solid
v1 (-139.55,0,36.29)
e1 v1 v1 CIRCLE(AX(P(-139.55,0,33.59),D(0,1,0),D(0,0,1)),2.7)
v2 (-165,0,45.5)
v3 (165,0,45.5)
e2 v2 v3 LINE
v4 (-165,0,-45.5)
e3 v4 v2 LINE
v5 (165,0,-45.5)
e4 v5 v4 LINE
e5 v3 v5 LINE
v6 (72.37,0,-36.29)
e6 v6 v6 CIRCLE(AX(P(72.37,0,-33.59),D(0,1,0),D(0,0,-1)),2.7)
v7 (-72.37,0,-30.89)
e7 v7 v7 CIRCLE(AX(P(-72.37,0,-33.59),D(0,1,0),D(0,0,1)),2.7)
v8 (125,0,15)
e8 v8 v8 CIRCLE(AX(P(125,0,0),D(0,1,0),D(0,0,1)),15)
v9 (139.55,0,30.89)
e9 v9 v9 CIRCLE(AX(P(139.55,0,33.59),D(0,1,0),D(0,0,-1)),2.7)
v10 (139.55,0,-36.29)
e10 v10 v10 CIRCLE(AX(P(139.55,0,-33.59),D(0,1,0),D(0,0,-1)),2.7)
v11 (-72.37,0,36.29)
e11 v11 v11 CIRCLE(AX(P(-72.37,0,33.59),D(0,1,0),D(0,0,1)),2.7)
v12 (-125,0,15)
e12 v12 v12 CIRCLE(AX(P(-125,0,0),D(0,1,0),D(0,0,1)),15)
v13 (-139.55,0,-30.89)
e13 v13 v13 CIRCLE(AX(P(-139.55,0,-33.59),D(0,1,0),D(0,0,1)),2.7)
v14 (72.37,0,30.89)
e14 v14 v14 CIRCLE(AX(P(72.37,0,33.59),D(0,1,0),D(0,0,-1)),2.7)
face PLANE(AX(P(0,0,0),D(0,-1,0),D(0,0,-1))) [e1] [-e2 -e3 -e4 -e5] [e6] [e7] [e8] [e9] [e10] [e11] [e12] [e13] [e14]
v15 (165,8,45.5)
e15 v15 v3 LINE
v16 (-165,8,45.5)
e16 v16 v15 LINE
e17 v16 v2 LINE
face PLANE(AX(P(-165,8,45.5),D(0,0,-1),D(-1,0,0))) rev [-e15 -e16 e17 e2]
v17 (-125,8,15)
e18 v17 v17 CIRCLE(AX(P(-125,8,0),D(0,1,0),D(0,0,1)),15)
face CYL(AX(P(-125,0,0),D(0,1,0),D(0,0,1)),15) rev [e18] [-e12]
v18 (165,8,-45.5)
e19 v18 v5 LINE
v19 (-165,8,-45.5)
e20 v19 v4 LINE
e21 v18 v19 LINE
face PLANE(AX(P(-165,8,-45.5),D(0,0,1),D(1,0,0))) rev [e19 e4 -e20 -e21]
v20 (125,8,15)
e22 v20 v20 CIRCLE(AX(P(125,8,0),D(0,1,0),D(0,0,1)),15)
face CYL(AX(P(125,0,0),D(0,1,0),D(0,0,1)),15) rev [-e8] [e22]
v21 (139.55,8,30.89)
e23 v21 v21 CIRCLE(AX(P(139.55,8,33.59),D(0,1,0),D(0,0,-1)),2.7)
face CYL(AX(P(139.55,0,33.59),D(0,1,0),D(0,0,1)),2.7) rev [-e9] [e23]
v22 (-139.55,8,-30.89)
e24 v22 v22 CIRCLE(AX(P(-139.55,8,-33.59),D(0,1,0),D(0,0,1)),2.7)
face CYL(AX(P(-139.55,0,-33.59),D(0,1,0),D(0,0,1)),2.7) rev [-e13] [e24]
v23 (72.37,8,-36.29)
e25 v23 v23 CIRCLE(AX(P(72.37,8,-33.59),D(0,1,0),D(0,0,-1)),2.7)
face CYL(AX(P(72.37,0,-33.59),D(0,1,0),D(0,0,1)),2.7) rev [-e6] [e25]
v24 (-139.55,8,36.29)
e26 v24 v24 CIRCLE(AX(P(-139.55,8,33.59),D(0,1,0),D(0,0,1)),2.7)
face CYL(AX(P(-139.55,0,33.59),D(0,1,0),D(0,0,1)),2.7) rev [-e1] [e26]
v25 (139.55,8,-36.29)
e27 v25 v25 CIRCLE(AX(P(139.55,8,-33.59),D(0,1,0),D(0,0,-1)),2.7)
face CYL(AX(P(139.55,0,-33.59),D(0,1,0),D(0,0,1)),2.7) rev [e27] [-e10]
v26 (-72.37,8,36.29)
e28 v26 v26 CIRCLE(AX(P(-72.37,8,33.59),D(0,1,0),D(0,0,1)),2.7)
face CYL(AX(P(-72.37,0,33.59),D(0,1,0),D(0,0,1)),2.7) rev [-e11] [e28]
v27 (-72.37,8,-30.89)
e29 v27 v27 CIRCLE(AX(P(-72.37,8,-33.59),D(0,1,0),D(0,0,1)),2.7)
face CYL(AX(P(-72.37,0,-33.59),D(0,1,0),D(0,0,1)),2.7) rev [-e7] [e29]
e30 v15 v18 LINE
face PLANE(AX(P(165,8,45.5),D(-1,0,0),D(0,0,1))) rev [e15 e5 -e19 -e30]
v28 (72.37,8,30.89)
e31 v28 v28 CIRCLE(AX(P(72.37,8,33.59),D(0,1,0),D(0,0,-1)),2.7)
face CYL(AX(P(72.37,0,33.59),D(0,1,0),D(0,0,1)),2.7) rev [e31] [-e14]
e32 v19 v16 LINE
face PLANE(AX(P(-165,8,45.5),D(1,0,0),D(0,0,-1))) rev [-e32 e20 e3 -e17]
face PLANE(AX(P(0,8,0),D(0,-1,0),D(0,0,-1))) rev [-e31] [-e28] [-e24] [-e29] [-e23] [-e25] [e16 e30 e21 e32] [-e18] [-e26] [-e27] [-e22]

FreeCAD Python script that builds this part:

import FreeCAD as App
import Part
import Sketcher

V = App.Vector

doc = App.newDocument("Part")
body = doc.addObject("PartDesign::Body", "Body")

# Sketch on XZ plane
sketch1 = body.newObject("Sketcher::SketchObject", "Sketch")
sketch1.AttachmentSupport = (doc.getObject("XZ_Plane"), [""])
sketch1.MapMode = "FlatFace"
sketch1.addGeometry(Part.LineSegment(V(-165, -46, 0), V(-165, 46, 0)), False)
sketch1.addGeometry(Part.LineSegment(V(-165, 46, 0), V(165, 46, 0)), False)
sketch1.addGeometry(Part.LineSegment(V(165, 46, 0), V(165, -46, 0)), False)
sketch1.addGeometry(Part.LineSegment(V(165, -46, 0), V(-165, -46, 0)), False)
sketch1.addConstraint(Sketcher.Constraint("Coincident", 0, 2, 1, 1))
sketch1.addConstraint(Sketcher.Constraint("Coincident", 1, 2, 2, 1))
sketch1.addConstraint(Sketcher.Constraint("Coincident", 2, 2, 3, 1))
sketch1.addConstraint(Sketcher.Constraint("Coincident", 3, 2, 0, 1))
sketch1.addConstraint(Sketcher.Constraint("Vertical", 0))
sketch1.addConstraint(Sketcher.Constraint("Horizontal", 1))
sketch1.addConstraint(Sketcher.Constraint("Vertical", 2))
sketch1.addConstraint(Sketcher.Constraint("Horizontal", 3))
sketch1.addConstraint(Sketcher.Constraint("Symmetric", 0, 2, 2, 2, -1, 1))
sketch1.addConstraint(Sketcher.Constraint("DistanceX", 1, 1, 1, 2, 330.0))
sketch1.addConstraint(Sketcher.Constraint("DistanceY", 0, 1, 0, 2, 91.0))
pad1 = body.newObject("PartDesign::Pad", "Pad")
pad1.Profile = sketch1
pad1.Length = 8
pad1.Reversed = True

# Sketch on XZ plane
sketch2 = body.newObject("Sketcher::SketchObject", "Sketch001")
sketch2.AttachmentSupport = (doc.getObject("XZ_Plane"), [""])
sketch2.MapMode = "FlatFace"
sketch2.AttachmentOffset = App.Placement(V(0, 0, -8), App.Rotation())
sketch2.addGeometry(Part.Circle(V(125, 0, 0), V(0, 0, 1), 15), False)
sketch2.addGeometry(Part.Circle(V(-125, 0, 0), V(0, 0, 1), 15), False)
sketch2.addGeometry(Part.Circle(V(-139.6, -33.6, 0), V(0, 0, 1), 2.7), False)
sketch2.addGeometry(Part.Circle(V(-139.6, 33.6, 0), V(0, 0, 1), 2.7), False)
sketch2.addGeometry(Part.Circle(V(-72.4, 33.6, 0), V(0, 0, 1), 2.7), False)
sketch2.addGeometry(Part.Circle(V(-72.4, -33.6, 0), V(0, 0, 1), 2.7), False)
sketch2.addGeometry(Part.Circle(V(139.6, 33.6, 0), V(0, 0, 1), 2.7), False)
sketch2.addGeometry(Part.Circle(V(72.4, 33.6, 0), V(0, 0, 1), 2.7), False)
sketch2.addGeometry(Part.Circle(V(72.4, -33.6, 0), V(0, 0, 1), 2.7), False)
sketch2.addGeometry(Part.Circle(V(139.6, -33.6, 0), V(0, 0, 1), 2.7), False)
sketch2.addConstraint(Sketcher.Constraint("Equal", 0, 1))
sketch2.addConstraint(Sketcher.Constraint("Equal", 2, 3))
sketch2.addConstraint(Sketcher.Constraint("Equal", 3, 4))
sketch2.addConstraint(Sketcher.Constraint("Equal", 4, 5))
sketch2.addConstraint(Sketcher.Constraint("Equal", 5, 6))
sketch2.addConstraint(Sketcher.Constraint("Equal", 6, 7))
sketch2.addConstraint(Sketcher.Constraint("Equal", 7, 8))
sketch2.addConstraint(Sketcher.Constraint("Equal", 8, 9))
sketch2.addConstraint(Sketcher.Constraint("Symmetric", 0, 3, 1, 3, -1, 1))
sketch2.addConstraint(Sketcher.Constraint("Symmetric", 2, 3, 6, 3, -1, 1))
sketch2.addConstraint(Sketcher.Constraint("Symmetric", 5, 3, 7, 3, -1, 1))
sketch2.addConstraint(Sketcher.Constraint("Symmetric", 4, 3, 8, 3, -1, 1))
sketch2.addConstraint(Sketcher.Constraint("Symmetric", 3, 3, 9, 3, -1, 1))
sketch2.addConstraint(Sketcher.Constraint("Symmetric", 3, 3, 6, 3, -2))
sketch2.addConstraint(Sketcher.Constraint("Symmetric", 4, 3, 7, 3, -2))
sketch2.addConstraint(Sketcher.Constraint("PointOnObject", 0, 3, -1))
sketch2.addConstraint(Sketcher.Constraint("Horizontal", 3, 3, 4, 3))
sketch2.addConstraint(Sketcher.Constraint("Diameter", 0, 30.0))
sketch2.addConstraint(Sketcher.Constraint("Diameter", 2, 5.4))
sketch2.addConstraint(Sketcher.Constraint("DistanceX", -1, 1, 0, 3, 125.0))
sketch2.addConstraint(Sketcher.Constraint("DistanceX", 3, 3, 6, 3, 279.1))
sketch2.addConstraint(Sketcher.Constraint("DistanceY", 2, 3, -1, 1, 33.59))
sketch2.addConstraint(Sketcher.Constraint("DistanceX", 4, 3, -1, 1, 72.37))
pocket1 = body.newObject("PartDesign::Pocket", "Pocket")
pocket1.Profile = sketch2
pocket1.Length = 8
pocket1.Reversed = True

doc.recompute()
